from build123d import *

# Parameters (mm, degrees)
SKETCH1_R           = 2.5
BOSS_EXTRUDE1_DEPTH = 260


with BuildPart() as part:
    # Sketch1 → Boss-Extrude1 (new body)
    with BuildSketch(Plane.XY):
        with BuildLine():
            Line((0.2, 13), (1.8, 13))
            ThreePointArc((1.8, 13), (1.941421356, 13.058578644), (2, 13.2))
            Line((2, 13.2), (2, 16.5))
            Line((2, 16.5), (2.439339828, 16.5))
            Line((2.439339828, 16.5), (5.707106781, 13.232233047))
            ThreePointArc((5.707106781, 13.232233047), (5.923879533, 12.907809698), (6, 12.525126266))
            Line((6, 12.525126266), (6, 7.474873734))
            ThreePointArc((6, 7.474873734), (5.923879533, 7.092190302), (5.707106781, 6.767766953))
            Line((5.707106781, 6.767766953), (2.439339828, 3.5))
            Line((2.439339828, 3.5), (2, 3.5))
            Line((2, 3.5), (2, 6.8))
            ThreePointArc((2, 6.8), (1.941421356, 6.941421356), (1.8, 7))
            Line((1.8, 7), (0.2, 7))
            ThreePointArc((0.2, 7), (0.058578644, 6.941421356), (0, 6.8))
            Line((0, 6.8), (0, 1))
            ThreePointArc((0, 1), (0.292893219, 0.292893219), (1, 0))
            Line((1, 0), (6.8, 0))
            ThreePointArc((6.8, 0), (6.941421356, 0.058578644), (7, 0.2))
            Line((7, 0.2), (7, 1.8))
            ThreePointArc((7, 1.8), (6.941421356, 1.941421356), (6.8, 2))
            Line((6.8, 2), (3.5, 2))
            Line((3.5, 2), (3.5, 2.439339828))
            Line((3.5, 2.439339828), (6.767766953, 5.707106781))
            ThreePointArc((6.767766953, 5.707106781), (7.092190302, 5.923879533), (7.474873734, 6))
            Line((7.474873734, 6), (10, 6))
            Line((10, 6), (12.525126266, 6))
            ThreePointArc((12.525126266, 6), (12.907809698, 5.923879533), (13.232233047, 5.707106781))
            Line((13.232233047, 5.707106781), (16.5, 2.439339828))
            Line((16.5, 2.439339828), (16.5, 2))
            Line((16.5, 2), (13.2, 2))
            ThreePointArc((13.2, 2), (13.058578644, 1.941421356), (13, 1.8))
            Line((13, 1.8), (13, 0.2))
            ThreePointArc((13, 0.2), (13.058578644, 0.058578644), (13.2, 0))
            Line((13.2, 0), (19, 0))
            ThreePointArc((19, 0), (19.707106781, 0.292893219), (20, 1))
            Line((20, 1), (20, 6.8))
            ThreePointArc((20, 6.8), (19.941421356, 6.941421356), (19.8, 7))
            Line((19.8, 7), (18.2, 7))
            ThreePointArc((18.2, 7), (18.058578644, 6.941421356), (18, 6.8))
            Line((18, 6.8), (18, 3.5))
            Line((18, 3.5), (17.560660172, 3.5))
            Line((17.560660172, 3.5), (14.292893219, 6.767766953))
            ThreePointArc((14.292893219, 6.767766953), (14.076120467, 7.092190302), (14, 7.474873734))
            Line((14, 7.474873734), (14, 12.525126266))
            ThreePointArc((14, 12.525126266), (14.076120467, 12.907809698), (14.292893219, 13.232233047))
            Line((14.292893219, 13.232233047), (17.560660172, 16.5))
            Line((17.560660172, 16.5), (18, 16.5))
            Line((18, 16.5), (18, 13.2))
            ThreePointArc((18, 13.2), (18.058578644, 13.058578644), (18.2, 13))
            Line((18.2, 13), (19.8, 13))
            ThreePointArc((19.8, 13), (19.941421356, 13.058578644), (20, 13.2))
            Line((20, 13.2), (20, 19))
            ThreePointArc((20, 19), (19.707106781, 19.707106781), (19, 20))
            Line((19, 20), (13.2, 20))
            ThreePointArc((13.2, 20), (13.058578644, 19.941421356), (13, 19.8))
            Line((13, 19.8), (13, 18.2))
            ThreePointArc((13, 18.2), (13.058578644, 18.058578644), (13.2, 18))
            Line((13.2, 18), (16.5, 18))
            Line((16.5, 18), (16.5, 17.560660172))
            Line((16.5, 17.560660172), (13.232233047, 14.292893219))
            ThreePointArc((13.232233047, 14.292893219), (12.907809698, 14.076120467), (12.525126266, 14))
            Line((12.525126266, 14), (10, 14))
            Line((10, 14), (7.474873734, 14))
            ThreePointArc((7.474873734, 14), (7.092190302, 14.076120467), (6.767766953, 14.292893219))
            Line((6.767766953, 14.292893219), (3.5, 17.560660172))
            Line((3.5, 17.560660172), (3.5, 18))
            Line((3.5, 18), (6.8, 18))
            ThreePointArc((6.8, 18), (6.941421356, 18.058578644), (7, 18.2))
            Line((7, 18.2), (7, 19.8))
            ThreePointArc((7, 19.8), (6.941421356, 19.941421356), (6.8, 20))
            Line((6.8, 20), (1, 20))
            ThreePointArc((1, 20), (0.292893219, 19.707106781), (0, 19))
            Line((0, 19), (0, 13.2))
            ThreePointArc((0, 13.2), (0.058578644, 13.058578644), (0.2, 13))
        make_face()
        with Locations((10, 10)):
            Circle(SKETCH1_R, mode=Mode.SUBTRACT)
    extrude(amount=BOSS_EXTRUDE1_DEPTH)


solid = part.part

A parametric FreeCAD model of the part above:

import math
import FreeCAD as App
import Part
import Sketcher
from FreeCAD import Vector
Q = App.Units.Quantity

doc = App.newDocument("Part")
body = doc.addObject("PartDesign::Body", "Body")

sketch1 = doc.addObject("Sketcher::SketchObject", "Sketch")
body.addObject(sketch1)
sketch1.AttachmentSupport = (doc.XY_Plane, [""])
sketch1.MapMode = "FlatFace"
sketch1.addGeometry([
    Part.LineSegment(Vector(0.2, 13, 0), Vector(1.8, 13, 0)),
    Part.ArcOfCircle(Part.Circle(Vector(1.8, 13.2, 0), Vector(0, 0, 1), 0.2), math.radians(-90), math.radians(0)),
    Part.LineSegment(Vector(2, 13.2, 0), Vector(2, 16.5, 0)),
    Part.LineSegment(Vector(2, 16.5, 0), Vector(2.44, 16.5, 0)),
    Part.LineSegment(Vector(2.44, 16.5, 0), Vector(5.71, 13.23, 0)),
    Part.ArcOfCircle(Part.Circle(Vector(5, 12.53, 0), Vector(0, 0, 1), 1), math.radians(0), math.radians(45)),
    Part.LineSegment(Vector(6, 12.53, 0), Vector(6, 7.47, 0)),
    Part.ArcOfCircle(Part.Circle(Vector(5, 7.47, 0), Vector(0, 0, 1), 1), math.radians(-45), math.radians(0)),
    Part.LineSegment(Vector(5.71, 6.77, 0), Vector(2.44, 3.5, 0)),
    Part.LineSegment(Vector(2.44, 3.5, 0), Vector(2, 3.5, 0)),
    Part.LineSegment(Vector(2, 3.5, 0), Vector(2, 6.8, 0)),
    Part.ArcOfCircle(Part.Circle(Vector(1.8, 6.8, 0), Vector(0, 0, 1), 0.2), math.radians(0), math.radians(90)),
    Part.LineSegment(Vector(1.8, 7, 0), Vector(0.2, 7, 0)),
    Part.ArcOfCircle(Part.Circle(Vector(0.2, 6.8, 0), Vector(0, 0, 1), 0.2), math.radians(90), math.radians(180)),
    Part.LineSegment(Vector(0, 6.8, 0), Vector(0, 1, 0)),
    Part.ArcOfCircle(Part.Circle(Vector(1, 1, 0), Vector(0, 0, 1), 1), math.radians(-180), math.radians(-90)),
    Part.LineSegment(Vector(1, 0, 0), Vector(6.8, 0, 0)),
    Part.ArcOfCircle(Part.Circle(Vector(6.8, 0.2, 0), Vector(0, 0, 1), 0.2), math.radians(-90), math.radians(0)),
    Part.LineSegment(Vector(7, 0.2, 0), Vector(7, 1.8, 0)),
    Part.ArcOfCircle(Part.Circle(Vector(6.8, 1.8, 0), Vector(0, 0, 1), 0.2), math.radians(0), math.radians(90)),
    Part.LineSegment(Vector(6.8, 2, 0), Vector(3.5, 2, 0)),
    Part.LineSegment(Vector(3.5, 2, 0), Vector(3.5, 2.44, 0)),
    Part.LineSegment(Vector(3.5, 2.44, 0), Vector(6.77, 5.71, 0)),
    Part.ArcOfCircle(Part.Circle(Vector(7.47, 5, 0), Vector(0, 0, 1), 1), math.radians(90), math.radians(135)),
    Part.LineSegment(Vector(7.47, 6, 0), Vector(12.53, 6, 0)),
    Part.ArcOfCircle(Part.Circle(Vector(12.53, 5, 0), Vector(0, 0, 1), 1), math.radians(45), math.radians(90)),
    Part.LineSegment(Vector(13.23, 5.71, 0), Vector(16.5, 2.44, 0)),
    Part.LineSegment(Vector(16.5, 2.44, 0), Vector(16.5, 2, 0)),
    Part.LineSegment(Vector(16.5, 2, 0), Vector(13.2, 2, 0)),
    Part.ArcOfCircle(Part.Circle(Vector(13.2, 1.8, 0), Vector(0, 0, 1), 0.2), math.radians(90), math.radians(180)),
    Part.LineSegment(Vector(13, 1.8, 0), Vector(13, 0.2, 0)),
    Part.ArcOfCircle(Part.Circle(Vector(13.2, 0.2, 0), Vector(0, 0, 1), 0.2), math.radians(-180), math.radians(-90)),
    Part.LineSegment(Vector(13.2, 0, 0), Vector(19, 0, 0)),
    Part.ArcOfCircle(Part.Circle(Vector(19, 1, 0), Vector(0, 0, 1), 1), math.radians(-90), math.radians(0)),
    Part.LineSegment(Vector(20, 1, 0), Vector(20, 6.8, 0)),
    Part.ArcOfCircle(Part.Circle(Vector(19.8, 6.8, 0), Vector(0, 0, 1), 0.2), math.radians(0), math.radians(90)),
    Part.LineSegment(Vector(19.8, 7, 0), Vector(18.2, 7, 0)),
    Part.ArcOfCircle(Part.Circle(Vector(18.2, 6.8, 0), Vector(0, 0, 1), 0.2), math.radians(90), math.radians(180)),
    Part.LineSegment(Vector(18, 6.8, 0), Vector(18, 3.5, 0)),
    Part.LineSegment(Vector(18, 3.5, 0), Vector(17.56, 3.5, 0)),
    Part.LineSegment(Vector(17.56, 3.5, 0), Vector(14.29, 6.77, 0)),
    Part.ArcOfCircle(Part.Circle(Vector(15, 7.47, 0), Vector(0, 0, 1), 1), math.radians(180), math.radians(225)),
    Part.LineSegment(Vector(14, 7.47, 0), Vector(14, 12.53, 0)),
    Part.ArcOfCircle(Part.Circle(Vector(15, 12.53, 0), Vector(0, 0, 1), 1), math.radians(135), math.radians(180)),
    Part.LineSegment(Vector(14.29, 13.23, 0), Vector(17.56, 16.5, 0)),
    Part.LineSegment(Vector(17.56, 16.5, 0), Vector(18, 16.5, 0)),
    Part.LineSegment(Vector(18, 16.5, 0), Vector(18, 13.2, 0)),
    Part.ArcOfCircle(Part.Circle(Vector(18.2, 13.2, 0), Vector(0, 0, 1), 0.2), math.radians(-180), math.radians(-90)),
    Part.LineSegment(Vector(18.2, 13, 0), Vector(19.8, 13, 0)),
    Part.ArcOfCircle(Part.Circle(Vector(19.8, 13.2, 0), Vector(0, 0, 1), 0.2), math.radians(-90), math.radians(0)),
    Part.LineSegment(Vector(20, 13.2, 0), Vector(20, 19, 0)),
    Part.ArcOfCircle(Part.Circle(Vector(19, 19, 0), Vector(0, 0, 1), 1), math.radians(0), math.radians(90)),
    Part.LineSegment(Vector(19, 20, 0), Vector(13.2, 20, 0)),
    Part.ArcOfCircle(Part.Circle(Vector(13.2, 19.8, 0), Vector(0, 0, 1), 0.2), math.radians(90), math.radians(180)),
    Part.LineSegment(Vector(13, 19.8, 0), Vector(13, 18.2, 0)),
    Part.ArcOfCircle(Part.Circle(Vector(13.2, 18.2, 0), Vector(0, 0, 1), 0.2), math.radians(-180), math.radians(-90)),
    Part.LineSegment(Vector(13.2, 18, 0), Vector(16.5, 18, 0)),
    Part.LineSegment(Vector(16.5, 18, 0), Vector(16.5, 17.56, 0)),
    Part.LineSegment(Vector(16.5, 17.56, 0), Vector(13.23, 14.29, 0)),
    Part.ArcOfCircle(Part.Circle(Vector(12.53, 15, 0), Vector(0, 0, 1), 1), math.radians(-90), math.radians(-45)),
    Part.LineSegment(Vector(12.53, 14, 0), Vector(7.47, 14, 0)),
    Part.ArcOfCircle(Part.Circle(Vector(7.47, 15, 0), Vector(0, 0, 1), 1), math.radians(-135), math.radians(-90)),
    Part.LineSegment(Vector(6.77, 14.29, 0), Vector(3.5, 17.56, 0)),
    Part.LineSegment(Vector(3.5, 17.56, 0), Vector(3.5, 18, 0)),
    Part.LineSegment(Vector(3.5, 18, 0), Vector(6.8, 18, 0)),
    Part.ArcOfCircle(Part.Circle(Vector(6.8, 18.2, 0), Vector(0, 0, 1), 0.2), math.radians(-90), math.radians(0)),
    Part.LineSegment(Vector(7, 18.2, 0), Vector(7, 19.8, 0)),
    Part.ArcOfCircle(Part.Circle(Vector(6.8, 19.8, 0), Vector(0, 0, 1), 0.2), math.radians(0), math.radians(90)),
    Part.LineSegment(Vector(6.8, 20, 0), Vector(1, 20, 0)),
    Part.ArcOfCircle(Part.Circle(Vector(1, 19, 0), Vector(0, 0, 1), 1), math.radians(90), math.radians(180)),
    Part.LineSegment(Vector(0, 19, 0), Vector(0, 13.2, 0)),
    Part.ArcOfCircle(Part.Circle(Vector(0.2, 13.2, 0), Vector(0, 0, 1), 0.2), math.radians(-180), math.radians(-90)),
    Part.Circle(Vector(10, 10, 0), Vector(0, 0, 1), 2.5),
], False)
sketch1.addConstraint([
    Sketcher.Constraint("Tangent", 0, 2, 1, 1),
    Sketcher.Constraint("Tangent", 1, 2, 2, 1),
    Sketcher.Constraint("Coincident", 2, 2, 3, 1),
    Sketcher.Constraint("Coincident", 3, 2, 4, 1),
    Sketcher.Constraint("Tangent", 4, 2, 5, 2),
    Sketcher.Constraint("Tangent", 5, 1, 6, 1),
    Sketcher.Constraint("Tangent", 6, 2, 7, 2),
    Sketcher.Constraint("Tangent", 7, 1, 8, 1),
    Sketcher.Constraint("Coincident", 8, 2, 9, 1),
    Sketcher.Constraint("Coincident", 9, 2, 10, 1),
    Sketcher.Constraint("Tangent", 10, 2, 11, 1),
    Sketcher.Constraint("Tangent", 11, 2, 12, 1),
    Sketcher.Constraint("Tangent", 12, 2, 13, 1),
    Sketcher.Constraint("Tangent", 13, 2, 14, 1),
    Sketcher.Constraint("Tangent", 14, 2, 15, 1),
    Sketcher.Constraint("Tangent", 15, 2, 16, 1),
    Sketcher.Constraint("Tangent", 16, 2, 17, 1),
    Sketcher.Constraint("Tangent", 17, 2, 18, 1),
    Sketcher.Constraint("Tangent", 18, 2, 19, 1),
    Sketcher.Constraint("Tangent", 19, 2, 20, 1),
    Sketcher.Constraint("Coincident", 20, 2, 21, 1),
    Sketcher.Constraint("Coincident", 21, 2, 22, 1),
    Sketcher.Constraint("Tangent", 22, 2, 23, 2),
    Sketcher.Constraint("Tangent", 23, 1, 24, 1),
    Sketcher.Constraint("Tangent", 24, 2, 25, 2),
    Sketcher.Constraint("Tangent", 25, 1, 26, 1),
    Sketcher.Constraint("Coincident", 26, 2, 27, 1),
    Sketcher.Constraint("Coincident", 27, 2, 28, 1),
    Sketcher.Constraint("Tangent", 28, 2, 29, 1),
    Sketcher.Constraint("Tangent", 29, 2, 30, 1),
    Sketcher.Constraint("Tangent", 30, 2, 31, 1),
    Sketcher.Constraint("Tangent", 31, 2, 32, 1),
    Sketcher.Constraint("Tangent", 32, 2, 33, 1),
    Sketcher.Constraint("Tangent", 33, 2, 34, 1),
    Sketcher.Constraint("Tangent", 34, 2, 35, 1),
    Sketcher.Constraint("Tangent", 35, 2, 36, 1),
    Sketcher.Constraint("Tangent", 36, 2, 37, 1),
    Sketcher.Constraint("Tangent", 37, 2, 38, 1),
    Sketcher.Constraint("Coincident", 38, 2, 39, 1),
    Sketcher.Constraint("Coincident", 39, 2, 40, 1),
    Sketcher.Constraint("Tangent", 40, 2, 41, 2),
    Sketcher.Constraint("Tangent", 41, 1, 42, 1),
    Sketcher.Constraint("Tangent", 42, 2, 43, 2),
    Sketcher.Constraint("Tangent", 43, 1, 44, 1),
    Sketcher.Constraint("Coincident", 44, 2, 45, 1),
    Sketcher.Constraint("Coincident", 45, 2, 46, 1),
    Sketcher.Constraint("Tangent", 46, 2, 47, 1),
    Sketcher.Constraint("Tangent", 47, 2, 48, 1),
    Sketcher.Constraint("Tangent", 48, 2, 49, 1),
    Sketcher.Constraint("Tangent", 49, 2, 50, 1),
    Sketcher.Constraint("Tangent", 50, 2, 51, 1),
    Sketcher.Constraint("Tangent", 51, 2, 52, 1),
    Sketcher.Constraint("Tangent", 52, 2, 53, 1),
    Sketcher.Constraint("Tangent", 53, 2, 54, 1),
    Sketcher.Constraint("Tangent", 54, 2, 55, 1),
    Sketcher.Constraint("Tangent", 55, 2, 56, 1),
    Sketcher.Constraint("Coincident", 56, 2, 57, 1),
    Sketcher.Constraint("Coincident", 57, 2, 58, 1),
    Sketcher.Constraint("Tangent", 58, 2, 59, 2),
    Sketcher.Constraint("Tangent", 59, 1, 60, 1),
    Sketcher.Constraint("Tangent", 60, 2, 61, 2),
    Sketcher.Constraint("Tangent", 61, 1, 62, 1),
    Sketcher.Constraint("Coincident", 62, 2, 63, 1),
    Sketcher.Constraint("Coincident", 63, 2, 64, 1),
    Sketcher.Constraint("Tangent", 64, 2, 65, 1),
    Sketcher.Constraint("Tangent", 65, 2, 66, 1),
    Sketcher.Constraint("Tangent", 66, 2, 67, 1),
    Sketcher.Constraint("Tangent", 67, 2, 68, 1),
    Sketcher.Constraint("Tangent", 68, 2, 69, 1),
    Sketcher.Constraint("Tangent", 69, 2, 70, 1),
    Sketcher.Constraint("Tangent", 70, 2, 71, 1),
    Sketcher.Constraint("Tangent", 71, 2, 0, 1),
    Sketcher.Constraint("Horizontal", 0),
    Sketcher.Constraint("Vertical", 2),
    Sketcher.Constraint("Horizontal", 3),
    Sketcher.Constraint("Vertical", 6),
    Sketcher.Constraint("Horizontal", 9),
    Sketcher.Constraint("Vertical", 10),
    Sketcher.Constraint("Horizontal", 12),
    Sketcher.Constraint("Vertical", 14),
    Sketcher.Constraint("Horizontal", 16),
    Sketcher.Constraint("Vertical", 18),
    Sketcher.Constraint("Horizontal", 20),
    Sketcher.Constraint("Vertical", 21),
    Sketcher.Constraint("Horizontal", 24),
    Sketcher.Constraint("Vertical", 27),
    Sketcher.Constraint("Horizontal", 28),
    Sketcher.Constraint("Vertical", 30),
    Sketcher.Constraint("Horizontal", 32),
    Sketcher.Constraint("Vertical", 34),
    Sketcher.Constraint("Horizontal", 36),
    Sketcher.Constraint("Vertical", 38),
    Sketcher.Constraint("Horizontal", 39),
    Sketcher.Constraint("Vertical", 42),
    Sketcher.Constraint("Horizontal", 45),
    Sketcher.Constraint("Vertical", 46),
    Sketcher.Constraint("Horizontal", 48),
    Sketcher.Constraint("Vertical", 50),
    Sketcher.Constraint("Horizontal", 52),
    Sketcher.Constraint("Vertical", 54),
    Sketcher.Constraint("Horizontal", 56),
    Sketcher.Constraint("Vertical", 57),
    Sketcher.Constraint("Horizontal", 60),
    Sketcher.Constraint("Vertical", 63),
    Sketcher.Constraint("Horizontal", 64),
    Sketcher.Constraint("Vertical", 66),
    Sketcher.Constraint("Horizontal", 68),
    Sketcher.Constraint("Vertical", 70),
    Sketcher.Constraint("Equal", 5, 7),
    Sketcher.Constraint("Equal", 1, 11),
    Sketcher.Constraint("Equal", 11, 13),
    Sketcher.Constraint("Equal", 7, 15),
    Sketcher.Constraint("Equal", 13, 17),
    Sketcher.Constraint("Equal", 17, 19),
    Sketcher.Constraint("Equal", 15, 23),
    Sketcher.Constraint("Equal", 23, 25),
    Sketcher.Constraint("Equal", 19, 29),
    Sketcher.Constraint("Equal", 29, 31),
    Sketcher.Constraint("Equal", 25, 33),
    Sketcher.Constraint("Equal", 31, 35),
    Sketcher.Constraint("Equal", 35, 37),
    Sketcher.Constraint("Equal", 33, 41),
    Sketcher.Constraint("Equal", 41, 43),
    Sketcher.Constraint("Equal", 37, 47),
    Sketcher.Constraint("Equal", 47, 49),
    Sketcher.Constraint("Equal", 43, 51),
    Sketcher.Constraint("Equal", 49, 53),
    Sketcher.Constraint("Equal", 53, 55),
    Sketcher.Constraint("Equal", 51, 59),
    Sketcher.Constraint("Equal", 59, 61),
    Sketcher.Constraint("Equal", 55, 65),
    Sketcher.Constraint("Equal", 65, 67),
    Sketcher.Constraint("Equal", 61, 69),
    Sketcher.Constraint("Equal", 67, 71),
    Sketcher.Constraint("PointOnObject", 13, 2, -2),
    Sketcher.Constraint("PointOnObject", 15, 2, -1),
    Sketcher.Constraint("PointOnObject", 31, 2, -1),
    Sketcher.Constraint("PointOnObject", 69, 2, -2),
    Sketcher.Constraint("Perpendicular", 4, 8),
    Sketcher.Constraint("Parallel", 8, 22),
    Sketcher.Constraint("Perpendicular", 22, 26),
    Sketcher.Constraint("Parallel", 26, 40),
    Sketcher.Constraint("Perpendicular", 40, 44),
    Sketcher.Constraint("Parallel", 44, 58),
    Sketcher.Constraint("Perpendicular", 58, 62),
    Sketcher.Constraint("Horizontal", 19, 3, 29, 3),
    Sketcher.Constraint("Horizontal", 13, 3, 35, 3),
    Sketcher.Constraint("Horizontal", 7, 3, 41, 3),
    Sketcher.Constraint("Horizontal", 5, 3, 43, 3),
    Sketcher.Constraint("Horizontal", 1, 3, 47, 3),
    Sketcher.Constraint("Horizontal", 55, 3, 65, 3),
    Sketcher.Constraint("Horizontal", 53, 3, 67, 3),
    Sketcher.Constraint("Horizontal", 22, 2, 25, 1),
    Sketcher.Constraint("Horizontal", 21, 2, 26, 2),
    Sketcher.Constraint("Horizontal", 9, 2, 38, 2),
    Sketcher.Constraint("Horizontal", 3, 2, 44, 2),
    Sketcher.Constraint("Horizontal", 57, 2, 62, 2),
    Sketcher.Constraint("Vertical", 1, 3, 11, 3),
    Sketcher.Constraint("Vertical", 37, 3, 47, 3),
    Sketcher.Constraint("Vertical", 35, 3, 49, 3),
    Sketcher.Constraint("Vertical", 31, 3, 53, 3),
    Sketcher.Constraint("Vertical", 25, 3, 59, 3),
    Sketcher.Constraint("Vertical", 23, 3, 61, 3),
    Sketcher.Constraint("Vertical", 19, 3, 65, 3),
    Sketcher.Constraint("Vertical", 3, 2, 8, 2),
    Sketcher.Constraint("Vertical", 27, 2, 56, 2),
    Sketcher.Constraint("Equal", 20, 28),
    Sketcher.Constraint("Equal", 16, 32),
    Sketcher.Constraint("Equal", 12, 36),
    Sketcher.Constraint("Equal", 9, 39),
    Sketcher.Constraint("Equal", 64, 2),
    Sketcher.Constraint("Equal", 60, 6),
    Sketcher.Constraint("Equal", 2, 10),
    Sketcher.Constraint("Equal", 68, 14),
    Sketcher.Constraint("Equal", 48, 18),
    Sketcher.Constraint("Equal", 45, 21),
    Sketcher.Constraint("Equal", 34, 50),
    Sketcher.Constraint("Equal", 30, 54),
    Sketcher.Constraint("Equal", 27, 57),
    Sketcher.Constraint("Equal", 8, 22),
    Sketcher.Constraint("Diameter", 72, Q("5 mm")),
    Sketcher.Constraint("Radius", 5, Q("1 mm")),
    Sketcher.Constraint("Radius", 1, Q("0.2 mm")),
    Sketcher.Constraint("DistanceX", 0, 1, 0, 2, Q("1.6 mm")),
    Sketcher.Constraint("DistanceX", 16, 1, 16, 2, Q("5.8 mm")),
    Sketcher.Constraint("DistanceX", 20, 2, 20, 1, Q("3.3 mm")),
    Sketcher.Constraint("DistanceX", -1, 1, 5, 3, Q("5 mm")),
    Sketcher.Constraint("DistanceX", -1, 1, 33, 3, Q("19 mm")),
    Sketcher.Constraint("DistanceX", -1, 1, 72, 3, Q("10 mm")),
    Sketcher.Constraint("DistanceY", -1, 1, 72, 3, Q("10 mm")),
    Sketcher.Constraint("DistanceX", 3, 1, 3, 2, Q("0.43934 mm")),
])
pad1 = doc.addObject("PartDesign::Pad", "Pad")
body.addObject(pad1)
pad1.Profile = sketch1
pad1.Length = 260

doc.recompute()
